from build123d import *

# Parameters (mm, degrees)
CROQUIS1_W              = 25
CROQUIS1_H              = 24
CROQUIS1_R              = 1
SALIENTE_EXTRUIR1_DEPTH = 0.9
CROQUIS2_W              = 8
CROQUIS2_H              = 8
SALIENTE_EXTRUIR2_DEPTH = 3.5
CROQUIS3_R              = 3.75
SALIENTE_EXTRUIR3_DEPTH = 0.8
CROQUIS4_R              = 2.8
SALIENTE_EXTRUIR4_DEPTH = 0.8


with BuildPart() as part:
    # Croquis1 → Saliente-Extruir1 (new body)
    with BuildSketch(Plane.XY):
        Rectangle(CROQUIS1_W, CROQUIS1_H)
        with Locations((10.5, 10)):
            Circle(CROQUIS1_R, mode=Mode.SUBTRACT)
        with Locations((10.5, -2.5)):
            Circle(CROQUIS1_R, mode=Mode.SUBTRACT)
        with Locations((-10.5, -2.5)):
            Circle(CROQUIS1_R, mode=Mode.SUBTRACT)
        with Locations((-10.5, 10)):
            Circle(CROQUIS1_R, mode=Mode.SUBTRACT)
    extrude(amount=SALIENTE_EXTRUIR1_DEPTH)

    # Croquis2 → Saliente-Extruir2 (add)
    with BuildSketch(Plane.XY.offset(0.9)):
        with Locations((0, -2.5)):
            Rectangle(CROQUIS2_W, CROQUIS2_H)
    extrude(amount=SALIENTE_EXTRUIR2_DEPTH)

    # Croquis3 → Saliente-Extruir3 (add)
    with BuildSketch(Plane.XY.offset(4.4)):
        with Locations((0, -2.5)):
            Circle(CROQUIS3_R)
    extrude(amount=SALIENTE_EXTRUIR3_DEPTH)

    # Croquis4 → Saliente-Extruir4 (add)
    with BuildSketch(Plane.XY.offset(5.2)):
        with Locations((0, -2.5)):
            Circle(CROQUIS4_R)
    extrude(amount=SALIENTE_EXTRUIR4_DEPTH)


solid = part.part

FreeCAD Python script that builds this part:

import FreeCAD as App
import Part
import Sketcher

V = App.Vector


def add_polygon(sketch, points):
    """Adds a closed chain of lines whose ends are joined by coincident constraints."""
    first, n = sketch.GeometryCount, len(points)
    for a, b in zip(points, points[1:] + points[:1]):
        sketch.addGeometry(Part.LineSegment(App.Vector(*a, 0), App.Vector(*b, 0)), False)
    for i in range(n):
        sketch.addConstraint(Sketcher.Constraint("Coincident", first + i, 2, first + (i + 1) % n, 1))

doc = App.newDocument("Part")
body = doc.addObject("PartDesign::Body", "Body")

sketch1 = body.newObject("Sketcher::SketchObject", "Sketch")
sketch1.AttachmentSupport = (doc.getObject("XY_Plane"), [""])
sketch1.MapMode = "FlatFace"
add_polygon(sketch1, [(-12.5, 12), (-12.5, -12), (12.5, -12), (12.5, 12)])
sketch1.addGeometry(Part.Circle(V(-10.5, -2.5, 0), V(0, 0, 1), 1), False)
sketch1.addGeometry(Part.Circle(V(10.5, -2.5, 0), V(0, 0, 1), 1), False)
sketch1.addGeometry(Part.Circle(V(-10.5, 10, 0), V(0, 0, 1), 1), False)
sketch1.addGeometry(Part.Circle(V(10.5, 10, 0), V(0, 0, 1), 1), False)
sketch1.addConstraint(Sketcher.Constraint("Vertical", 0))
sketch1.addConstraint(Sketcher.Constraint("Horizontal", 1))
sketch1.addConstraint(Sketcher.Constraint("Vertical", 2))
sketch1.addConstraint(Sketcher.Constraint("Horizontal", 3))
sketch1.addConstraint(Sketcher.Constraint("Equal", 4, 5))
sketch1.addConstraint(Sketcher.Constraint("Equal", 5, 6))
sketch1.addConstraint(Sketcher.Constraint("Equal", 6, 7))
sketch1.addConstraint(Sketcher.Constraint("Symmetric", 0, 2, 2, 2, -1, 1))
sketch1.addConstraint(Sketcher.Constraint("Symmetric", 4, 3, 5, 3, -2))
sketch1.addConstraint(Sketcher.Constraint("Symmetric", 6, 3, 7, 3, -2))
sketch1.addConstraint(Sketcher.Constraint("Vertical", 4, 3, 6, 3))
sketch1.addConstraint(Sketcher.Constraint("Diameter", 4, 2.0))
sketch1.addConstraint(Sketcher.Constraint("DistanceX", 1, 1, 1, 2, 25.0))
sketch1.addConstraint(Sketcher.Constraint("DistanceY", 0, 2, 0, 1, 24.0))
sketch1.addConstraint(Sketcher.Constraint("DistanceY", -1, 1, 6, 3, 10.0))
sketch1.addConstraint(Sketcher.Constraint("DistanceX", 4, 3, 5, 3, 21.0))
sketch1.addConstraint(Sketcher.Constraint("DistanceY", 4, 3, -1, 1, 2.5))
pad1 = body.newObject("PartDesign::Pad", "Pad")
pad1.Profile = sketch1
pad1.Length = 0.9

sketch2 = body.newObject("Sketcher::SketchObject", "Sketch001")
sketch2.AttachmentSupport = (doc.getObject("XY_Plane"), [""])
sketch2.MapMode = "FlatFace"
sketch2.AttachmentOffset = App.Placement(V(0, 0, 0.9), App.Rotation())
add_polygon(sketch2, [(-4, 1.5), (-4, -6.5), (4, -6.5), (4, 1.5)])
sketch2.addConstraint(Sketcher.Constraint("Vertical", 0))
sketch2.addConstraint(Sketcher.Constraint("Horizontal", 1))
sketch2.addConstraint(Sketcher.Constraint("Vertical", 2))
sketch2.addConstraint(Sketcher.Constraint("Horizontal", 3))
sketch2.addConstraint(Sketcher.Constraint("Equal", 3, 0))
sketch2.addConstraint(Sketcher.Constraint("DistanceX", 1, 1, 1, 2, 8.0))
sketch2.addConstraint(Sketcher.Constraint("DistanceX", 0, 2, -1, 1, 4.0))
sketch2.addConstraint(Sketcher.Constraint("DistanceY", 0, 2, -1, 1, 6.5))
pad2 = body.newObject("PartDesign::Pad", "Pad001")
pad2.Profile = sketch2
pad2.Length = 3.5

sketch3 = body.newObject("Sketcher::SketchObject", "Sketch002")
sketch3.AttachmentSupport = (doc.getObject("XY_Plane"), [""])
sketch3.MapMode = "FlatFace"
sketch3.AttachmentOffset = App.Placement(V(0, 0, 4.4), App.Rotation())
sketch3.addGeometry(Part.Circle(V(0, -2.5, 0), V(0, 0, 1), 3.75), False)
sketch3.addConstraint(Sketcher.Constraint("PointOnObject", 0, 3, -2))
sketch3.addConstraint(Sketcher.Constraint("Diameter", 0, 7.5))
sketch3.addConstraint(Sketcher.Constraint("DistanceY", 0, 3, -1, 1, 2.5))
pad3 = body.newObject("PartDesign::Pad", "Pad002")
pad3.Profile = sketch3
pad3.Length = 0.8

sketch4 = body.newObject("Sketcher::SketchObject", "Sketch003")
sketch4.AttachmentSupport = (doc.getObject("XY_Plane"), [""])
sketch4.MapMode = "FlatFace"
sketch4.AttachmentOffset = App.Placement(V(0, 0, 5.2), App.Rotation())
sketch4.addGeometry(Part.Circle(V(0, -2.5, 0), V(0, 0, 1), 2.8), False)
sketch4.addConstraint(Sketcher.Constraint("PointOnObject", 0, 3, -2))
sketch4.addConstraint(Sketcher.Constraint("Diameter", 0, 5.6))
sketch4.addConstraint(Sketcher.Constraint("DistanceY", 0, 3, -1, 1, 2.5))
pad4 = body.newObject("PartDesign::Pad", "Pad003")
pad4.Profile = sketch4
pad4.Length = 0.8

doc.recompute()
